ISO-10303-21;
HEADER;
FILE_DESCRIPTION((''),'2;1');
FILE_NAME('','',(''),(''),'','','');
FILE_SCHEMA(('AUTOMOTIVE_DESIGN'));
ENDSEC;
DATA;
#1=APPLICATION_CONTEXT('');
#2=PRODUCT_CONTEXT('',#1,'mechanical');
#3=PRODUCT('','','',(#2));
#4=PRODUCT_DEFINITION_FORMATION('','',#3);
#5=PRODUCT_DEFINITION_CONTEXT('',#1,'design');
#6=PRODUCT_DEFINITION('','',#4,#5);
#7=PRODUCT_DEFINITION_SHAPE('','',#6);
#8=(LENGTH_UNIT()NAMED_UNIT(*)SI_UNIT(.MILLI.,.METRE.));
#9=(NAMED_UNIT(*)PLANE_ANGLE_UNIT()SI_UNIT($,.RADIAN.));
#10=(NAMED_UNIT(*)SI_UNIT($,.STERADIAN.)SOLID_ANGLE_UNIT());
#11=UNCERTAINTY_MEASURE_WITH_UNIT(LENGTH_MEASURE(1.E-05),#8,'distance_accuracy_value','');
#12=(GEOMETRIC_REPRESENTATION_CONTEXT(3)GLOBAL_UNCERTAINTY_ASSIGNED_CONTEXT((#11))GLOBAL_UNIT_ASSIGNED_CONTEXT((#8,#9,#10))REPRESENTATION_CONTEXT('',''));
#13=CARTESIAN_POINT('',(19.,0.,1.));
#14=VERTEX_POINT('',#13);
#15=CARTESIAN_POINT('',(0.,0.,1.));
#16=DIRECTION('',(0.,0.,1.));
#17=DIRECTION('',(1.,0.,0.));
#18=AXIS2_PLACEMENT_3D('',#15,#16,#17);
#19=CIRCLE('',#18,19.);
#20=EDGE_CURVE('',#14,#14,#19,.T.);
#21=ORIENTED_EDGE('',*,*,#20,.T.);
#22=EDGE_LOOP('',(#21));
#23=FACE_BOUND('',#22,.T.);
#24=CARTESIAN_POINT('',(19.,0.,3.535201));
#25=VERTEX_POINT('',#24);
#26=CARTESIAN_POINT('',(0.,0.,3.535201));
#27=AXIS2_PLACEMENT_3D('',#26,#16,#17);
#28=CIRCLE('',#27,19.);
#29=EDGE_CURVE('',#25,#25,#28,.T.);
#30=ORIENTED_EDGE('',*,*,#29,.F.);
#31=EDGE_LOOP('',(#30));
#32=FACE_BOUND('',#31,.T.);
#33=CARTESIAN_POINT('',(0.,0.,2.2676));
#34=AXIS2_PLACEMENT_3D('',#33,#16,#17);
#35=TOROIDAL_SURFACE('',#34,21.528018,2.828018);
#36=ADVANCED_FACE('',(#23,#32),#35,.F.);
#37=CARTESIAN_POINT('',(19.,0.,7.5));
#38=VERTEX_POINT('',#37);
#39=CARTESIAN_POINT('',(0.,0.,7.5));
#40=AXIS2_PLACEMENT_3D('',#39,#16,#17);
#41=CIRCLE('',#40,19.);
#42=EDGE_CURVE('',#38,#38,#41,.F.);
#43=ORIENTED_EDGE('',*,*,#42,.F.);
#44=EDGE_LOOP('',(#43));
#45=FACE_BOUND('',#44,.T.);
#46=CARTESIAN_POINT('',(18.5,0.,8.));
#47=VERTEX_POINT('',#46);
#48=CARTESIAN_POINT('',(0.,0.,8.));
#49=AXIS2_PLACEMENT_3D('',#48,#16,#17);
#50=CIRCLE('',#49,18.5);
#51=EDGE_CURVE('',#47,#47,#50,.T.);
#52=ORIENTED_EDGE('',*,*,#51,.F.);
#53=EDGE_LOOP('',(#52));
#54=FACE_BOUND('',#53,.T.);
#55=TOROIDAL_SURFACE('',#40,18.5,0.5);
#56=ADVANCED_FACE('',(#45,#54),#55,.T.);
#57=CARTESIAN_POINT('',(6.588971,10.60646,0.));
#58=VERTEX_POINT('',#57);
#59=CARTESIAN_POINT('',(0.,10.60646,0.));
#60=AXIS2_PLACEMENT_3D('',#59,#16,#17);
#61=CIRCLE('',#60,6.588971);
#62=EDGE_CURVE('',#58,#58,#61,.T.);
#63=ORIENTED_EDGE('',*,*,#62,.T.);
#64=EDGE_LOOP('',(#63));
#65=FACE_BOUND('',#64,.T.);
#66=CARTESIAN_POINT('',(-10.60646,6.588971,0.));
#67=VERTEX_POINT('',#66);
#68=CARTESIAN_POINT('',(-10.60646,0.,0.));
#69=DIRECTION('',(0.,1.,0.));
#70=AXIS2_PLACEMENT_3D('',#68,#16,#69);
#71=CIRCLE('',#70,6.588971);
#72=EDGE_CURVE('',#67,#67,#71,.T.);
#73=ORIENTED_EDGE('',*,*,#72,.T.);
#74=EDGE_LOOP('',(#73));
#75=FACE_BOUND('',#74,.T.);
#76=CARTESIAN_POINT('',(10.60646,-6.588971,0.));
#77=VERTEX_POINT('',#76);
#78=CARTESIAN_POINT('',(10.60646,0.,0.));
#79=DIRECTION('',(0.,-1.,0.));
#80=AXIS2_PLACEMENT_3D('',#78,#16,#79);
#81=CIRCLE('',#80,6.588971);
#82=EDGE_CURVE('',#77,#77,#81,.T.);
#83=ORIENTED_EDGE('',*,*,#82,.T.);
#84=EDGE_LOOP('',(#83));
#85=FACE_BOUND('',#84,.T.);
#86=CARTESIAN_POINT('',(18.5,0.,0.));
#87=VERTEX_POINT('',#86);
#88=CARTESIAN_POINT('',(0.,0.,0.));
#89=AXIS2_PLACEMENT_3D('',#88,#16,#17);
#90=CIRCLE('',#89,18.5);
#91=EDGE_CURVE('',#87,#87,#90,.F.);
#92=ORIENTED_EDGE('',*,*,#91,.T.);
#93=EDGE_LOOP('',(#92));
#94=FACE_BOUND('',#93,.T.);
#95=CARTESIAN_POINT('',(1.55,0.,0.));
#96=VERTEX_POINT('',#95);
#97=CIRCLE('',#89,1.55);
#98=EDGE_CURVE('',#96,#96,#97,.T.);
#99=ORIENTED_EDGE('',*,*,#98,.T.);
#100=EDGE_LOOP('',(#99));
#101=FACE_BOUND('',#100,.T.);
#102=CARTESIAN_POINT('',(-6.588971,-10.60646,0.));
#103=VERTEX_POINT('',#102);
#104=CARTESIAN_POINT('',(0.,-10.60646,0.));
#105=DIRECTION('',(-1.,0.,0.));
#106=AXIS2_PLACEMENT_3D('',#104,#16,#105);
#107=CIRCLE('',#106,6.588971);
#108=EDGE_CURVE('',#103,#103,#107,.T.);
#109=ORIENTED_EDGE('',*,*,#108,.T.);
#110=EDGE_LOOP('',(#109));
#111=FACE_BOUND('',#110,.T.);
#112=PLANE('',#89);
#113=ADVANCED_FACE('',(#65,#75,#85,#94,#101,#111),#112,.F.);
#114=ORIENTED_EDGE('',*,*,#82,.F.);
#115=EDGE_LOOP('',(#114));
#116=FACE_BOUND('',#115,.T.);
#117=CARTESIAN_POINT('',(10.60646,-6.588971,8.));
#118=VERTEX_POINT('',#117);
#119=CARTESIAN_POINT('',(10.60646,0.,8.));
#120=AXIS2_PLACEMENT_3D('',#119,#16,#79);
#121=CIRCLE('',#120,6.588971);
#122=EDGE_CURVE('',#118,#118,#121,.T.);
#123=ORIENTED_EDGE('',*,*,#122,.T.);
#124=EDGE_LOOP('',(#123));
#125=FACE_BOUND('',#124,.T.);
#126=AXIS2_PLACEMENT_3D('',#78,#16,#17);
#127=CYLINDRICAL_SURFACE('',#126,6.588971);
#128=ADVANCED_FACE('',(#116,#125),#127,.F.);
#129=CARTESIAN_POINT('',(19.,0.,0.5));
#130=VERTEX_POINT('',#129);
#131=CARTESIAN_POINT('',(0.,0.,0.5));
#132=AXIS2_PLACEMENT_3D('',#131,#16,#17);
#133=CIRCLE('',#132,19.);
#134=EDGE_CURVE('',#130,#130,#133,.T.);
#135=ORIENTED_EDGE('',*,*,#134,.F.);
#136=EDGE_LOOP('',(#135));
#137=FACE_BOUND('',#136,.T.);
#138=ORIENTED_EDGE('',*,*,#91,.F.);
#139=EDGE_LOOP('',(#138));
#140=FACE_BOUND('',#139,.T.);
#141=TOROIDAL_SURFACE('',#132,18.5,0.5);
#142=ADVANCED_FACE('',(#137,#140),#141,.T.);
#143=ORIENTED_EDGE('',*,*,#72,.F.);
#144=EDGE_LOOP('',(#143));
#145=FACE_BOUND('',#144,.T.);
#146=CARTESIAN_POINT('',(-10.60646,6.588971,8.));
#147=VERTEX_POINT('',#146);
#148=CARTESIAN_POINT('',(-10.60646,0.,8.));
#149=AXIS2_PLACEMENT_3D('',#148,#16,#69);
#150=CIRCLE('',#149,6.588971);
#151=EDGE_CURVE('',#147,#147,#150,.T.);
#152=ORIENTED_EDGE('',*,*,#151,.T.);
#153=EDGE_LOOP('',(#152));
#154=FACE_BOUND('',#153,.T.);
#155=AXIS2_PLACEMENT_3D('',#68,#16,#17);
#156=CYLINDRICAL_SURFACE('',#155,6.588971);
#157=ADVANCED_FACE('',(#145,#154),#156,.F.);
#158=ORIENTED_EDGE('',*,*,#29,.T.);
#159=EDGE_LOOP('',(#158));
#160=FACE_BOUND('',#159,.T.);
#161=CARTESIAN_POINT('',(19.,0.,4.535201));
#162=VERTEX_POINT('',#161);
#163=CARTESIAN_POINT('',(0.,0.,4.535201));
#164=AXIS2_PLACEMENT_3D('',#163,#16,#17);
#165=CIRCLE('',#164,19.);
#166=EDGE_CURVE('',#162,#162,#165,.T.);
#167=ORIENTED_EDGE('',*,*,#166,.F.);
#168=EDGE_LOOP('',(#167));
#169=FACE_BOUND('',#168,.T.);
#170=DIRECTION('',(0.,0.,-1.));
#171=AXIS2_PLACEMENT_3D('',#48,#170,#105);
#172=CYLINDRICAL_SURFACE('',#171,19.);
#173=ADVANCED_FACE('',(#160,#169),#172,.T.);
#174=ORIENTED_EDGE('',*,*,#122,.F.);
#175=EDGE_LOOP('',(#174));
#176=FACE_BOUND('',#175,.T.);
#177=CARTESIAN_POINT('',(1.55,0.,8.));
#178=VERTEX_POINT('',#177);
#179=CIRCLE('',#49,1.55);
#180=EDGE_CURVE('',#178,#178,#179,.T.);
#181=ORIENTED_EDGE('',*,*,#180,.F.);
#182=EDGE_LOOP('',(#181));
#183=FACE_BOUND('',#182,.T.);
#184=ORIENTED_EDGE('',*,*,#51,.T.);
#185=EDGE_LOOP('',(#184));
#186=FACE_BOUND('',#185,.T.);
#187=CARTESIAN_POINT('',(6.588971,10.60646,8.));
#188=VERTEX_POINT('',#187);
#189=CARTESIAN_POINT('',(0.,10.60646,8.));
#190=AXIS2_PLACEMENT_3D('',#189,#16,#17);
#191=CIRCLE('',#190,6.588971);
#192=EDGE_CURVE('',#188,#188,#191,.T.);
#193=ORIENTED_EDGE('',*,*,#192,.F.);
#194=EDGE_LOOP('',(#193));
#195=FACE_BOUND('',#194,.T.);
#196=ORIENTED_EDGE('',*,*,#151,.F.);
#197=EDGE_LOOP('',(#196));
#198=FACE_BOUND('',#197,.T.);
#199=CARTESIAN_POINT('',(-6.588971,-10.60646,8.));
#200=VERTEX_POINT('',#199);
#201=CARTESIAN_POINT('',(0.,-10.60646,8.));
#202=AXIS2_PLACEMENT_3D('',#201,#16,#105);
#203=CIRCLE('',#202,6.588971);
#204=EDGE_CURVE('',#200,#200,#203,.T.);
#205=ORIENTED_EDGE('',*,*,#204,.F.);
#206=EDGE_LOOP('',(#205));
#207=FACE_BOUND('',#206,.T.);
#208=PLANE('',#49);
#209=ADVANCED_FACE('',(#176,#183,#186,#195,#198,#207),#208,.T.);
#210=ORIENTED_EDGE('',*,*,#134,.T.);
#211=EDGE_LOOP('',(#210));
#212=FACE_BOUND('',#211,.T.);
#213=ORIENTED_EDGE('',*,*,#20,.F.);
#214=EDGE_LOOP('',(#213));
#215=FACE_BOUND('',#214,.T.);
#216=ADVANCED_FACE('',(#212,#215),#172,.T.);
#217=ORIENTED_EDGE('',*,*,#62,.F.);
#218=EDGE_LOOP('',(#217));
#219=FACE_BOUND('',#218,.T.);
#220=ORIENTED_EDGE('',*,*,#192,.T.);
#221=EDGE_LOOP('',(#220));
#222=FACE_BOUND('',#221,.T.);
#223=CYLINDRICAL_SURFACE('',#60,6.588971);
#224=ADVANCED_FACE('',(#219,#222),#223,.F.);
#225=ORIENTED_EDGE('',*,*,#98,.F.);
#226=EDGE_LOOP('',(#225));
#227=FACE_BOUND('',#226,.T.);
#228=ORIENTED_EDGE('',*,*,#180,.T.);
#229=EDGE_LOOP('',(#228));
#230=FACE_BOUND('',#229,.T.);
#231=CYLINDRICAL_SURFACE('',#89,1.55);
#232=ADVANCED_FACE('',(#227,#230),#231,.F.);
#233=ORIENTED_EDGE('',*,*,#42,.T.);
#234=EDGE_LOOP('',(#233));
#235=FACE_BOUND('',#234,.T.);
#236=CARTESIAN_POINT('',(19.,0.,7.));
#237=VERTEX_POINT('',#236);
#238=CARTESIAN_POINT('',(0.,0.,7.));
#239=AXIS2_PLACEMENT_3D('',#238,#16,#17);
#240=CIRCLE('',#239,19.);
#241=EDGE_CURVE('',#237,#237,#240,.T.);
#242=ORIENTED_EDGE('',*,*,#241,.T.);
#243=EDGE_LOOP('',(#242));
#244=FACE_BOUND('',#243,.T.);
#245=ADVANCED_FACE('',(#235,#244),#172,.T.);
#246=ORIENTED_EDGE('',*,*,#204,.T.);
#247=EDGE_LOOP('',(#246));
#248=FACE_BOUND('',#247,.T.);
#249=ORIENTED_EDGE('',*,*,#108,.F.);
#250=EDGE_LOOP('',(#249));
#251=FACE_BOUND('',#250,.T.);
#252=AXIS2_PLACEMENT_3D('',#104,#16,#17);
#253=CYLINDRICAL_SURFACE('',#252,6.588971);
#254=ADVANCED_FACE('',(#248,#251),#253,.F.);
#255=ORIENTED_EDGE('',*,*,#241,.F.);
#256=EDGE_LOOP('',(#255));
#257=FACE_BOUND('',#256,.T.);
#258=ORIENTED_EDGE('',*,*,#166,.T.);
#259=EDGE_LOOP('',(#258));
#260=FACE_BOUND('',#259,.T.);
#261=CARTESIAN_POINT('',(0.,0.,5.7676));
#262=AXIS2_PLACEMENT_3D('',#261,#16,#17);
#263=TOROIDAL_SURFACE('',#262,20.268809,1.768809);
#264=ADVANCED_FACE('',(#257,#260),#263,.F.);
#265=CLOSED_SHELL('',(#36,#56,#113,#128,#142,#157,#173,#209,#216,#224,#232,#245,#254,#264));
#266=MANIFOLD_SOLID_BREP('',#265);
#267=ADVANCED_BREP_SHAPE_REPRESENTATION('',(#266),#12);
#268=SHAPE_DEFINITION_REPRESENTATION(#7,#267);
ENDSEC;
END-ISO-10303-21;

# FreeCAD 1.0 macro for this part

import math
import FreeCAD as App
import Part
import Sketcher


def edges_at(feature, points):
    """Names of the edges that pass closest to the given points."""
    edges = feature.Shape.Edges
    near = lambda p: min(range(len(edges)), key=lambda i: edges[i].distToShape(Part.Vertex(*p))[0])
    return sorted({f"Edge{near(p) + 1}" for p in points})

doc = App.newDocument("Part")
body = doc.addObject("PartDesign::Body", "Body")

sketch1 = body.newObject("Sketcher::SketchObject", "Sketch")
sketch1.AttachmentSupport = (doc.getObject("XY_Plane"), [""])
sketch1.MapMode = "FlatFace"
sketch1.addGeometry(Part.Circle(App.Vector(0, 0, 0), App.Vector(0, 0, 1), 19), False)
sketch1.addConstraint(Sketcher.Constraint("Coincident", 0, 3, -1, 1))
sketch1.addConstraint(Sketcher.Constraint("Diameter", 0, 38.0))
pad1 = body.newObject("PartDesign::Pad", "Pad")
pad1.Profile = sketch1
pad1.Length = 8

sketch2 = body.newObject("Sketcher::SketchObject", "Sketch001")
sketch2.AttachmentSupport = (doc.getObject("YZ_Plane"), [""])
sketch2.MapMode = "FlatFace"
sketch2.addGeometry(Part.LineSegment(App.Vector(19, 4.5, 0), App.Vector(19, 7, 0)), False)
sketch2.addGeometry(Part.ArcOfCircle(Part.Circle(App.Vector(20.3, 5.8, 0), App.Vector(0, 0, 1), 1.8), math.radians(136), math.radians(224)), False)
sketch2.addGeometry(Part.LineSegment(App.Vector(19, 1, 0), App.Vector(19, 3.5, 0)), False)
sketch2.addGeometry(Part.ArcOfCircle(Part.Circle(App.Vector(21.5, 2.3, 0), App.Vector(0, 0, 1), 2.8), math.radians(153), math.radians(207)), False)
sketch2.addConstraint(Sketcher.Constraint("Coincident", 0, 1, 1, 2))
sketch2.addConstraint(Sketcher.Constraint("Coincident", 1, 1, 0, 2))
sketch2.addConstraint(Sketcher.Constraint("Coincident", 2, 1, 3, 2))
sketch2.addConstraint(Sketcher.Constraint("Coincident", 3, 1, 2, 2))
sketch2.addConstraint(Sketcher.Constraint("Vertical", 0))
sketch2.addConstraint(Sketcher.Constraint("Vertical", 2))
sketch2.addConstraint(Sketcher.Constraint("Vertical", 1, 1, 2, 1))
sketch2.addConstraint(Sketcher.Constraint("DistanceX", -1, 1, 0, 1, 19.0))
sketch2.addConstraint(Sketcher.Constraint("DistanceY", -1, 1, 1, 1, 7.0))
sketch2.addConstraint(Sketcher.Constraint("DistanceY", -1, 1, 2, 1, 1.0))
sketch2.addConstraint(Sketcher.Constraint("DistanceY", 3, 1, 0, 1, 1.0))
sketch2.addConstraint(Sketcher.Constraint("Radius", 1, 1.768809))
sketch2.addConstraint(Sketcher.Constraint("DistanceY", 0, 1, 0, 2, 2.464799))
sketch2.addConstraint(Sketcher.Constraint("Radius", 3, 2.828018))
groove = body.newObject("PartDesign::Groove", "Groove")
groove.Profile = sketch2
groove.ReferenceAxis = (sketch2, ["V_Axis"])
groove.Angle = 360
doc.recompute()

fillet = body.newObject("PartDesign::Fillet", "Fillet")
fillet.Base = (groove, edges_at(groove, [(-19, 0, 0), (-19, 0, 8)]))
fillet.Radius = 0.5

sketch3 = body.newObject("Sketcher::SketchObject", "Sketch002")
sketch3.AttachmentSupport = (doc.getObject("XY_Plane"), [""])
sketch3.MapMode = "FlatFace"
sketch3.AttachmentOffset = App.Placement(App.Vector(0, 0, 8), App.Rotation())
sketch3.addGeometry(Part.Circle(App.Vector(0, 0, 0), App.Vector(0, 0, 1), 1.6), False)
sketch3.addConstraint(Sketcher.Constraint("Coincident", 0, 3, -1, 1))
sketch3.addConstraint(Sketcher.Constraint("Diameter", 0, 3.1))
pocket1 = body.newObject("PartDesign::Pocket", "Pocket")
pocket1.Profile = sketch3
pocket1.Length = 8

sketch4 = body.newObject("Sketcher::SketchObject", "Sketch003")
sketch4.AttachmentSupport = (doc.getObject("XY_Plane"), [""])
sketch4.MapMode = "FlatFace"
sketch4.AttachmentOffset = App.Placement(App.Vector(0, 0, 8), App.Rotation())
sketch4.addGeometry(Part.Circle(App.Vector(0, 11, 0), App.Vector(0, 0, 1), 7), False)
sketch4.addConstraint(Sketcher.Constraint("PointOnObject", 0, 3, -2))
sketch4.addConstraint(Sketcher.Constraint("Diameter", 0, 13.177942))
sketch4.addConstraint(Sketcher.Constraint("DistanceY", -1, 1, 0, 3, 10.60646))
pocket2 = body.newObject("PartDesign::Pocket", "Pocket001")
pocket2.Profile = sketch4
pocket2.Length = 8
doc.recompute()

polarpattern = body.newObject("PartDesign::PolarPattern", "PolarPattern")
polarpattern.Originals = [pocket2]
polarpattern.Axis = (doc.getObject("Z_Axis"), [""])
polarpattern.Angle = 360
polarpattern.Occurrences = 4
body.Tip = polarpattern

doc.recompute()
